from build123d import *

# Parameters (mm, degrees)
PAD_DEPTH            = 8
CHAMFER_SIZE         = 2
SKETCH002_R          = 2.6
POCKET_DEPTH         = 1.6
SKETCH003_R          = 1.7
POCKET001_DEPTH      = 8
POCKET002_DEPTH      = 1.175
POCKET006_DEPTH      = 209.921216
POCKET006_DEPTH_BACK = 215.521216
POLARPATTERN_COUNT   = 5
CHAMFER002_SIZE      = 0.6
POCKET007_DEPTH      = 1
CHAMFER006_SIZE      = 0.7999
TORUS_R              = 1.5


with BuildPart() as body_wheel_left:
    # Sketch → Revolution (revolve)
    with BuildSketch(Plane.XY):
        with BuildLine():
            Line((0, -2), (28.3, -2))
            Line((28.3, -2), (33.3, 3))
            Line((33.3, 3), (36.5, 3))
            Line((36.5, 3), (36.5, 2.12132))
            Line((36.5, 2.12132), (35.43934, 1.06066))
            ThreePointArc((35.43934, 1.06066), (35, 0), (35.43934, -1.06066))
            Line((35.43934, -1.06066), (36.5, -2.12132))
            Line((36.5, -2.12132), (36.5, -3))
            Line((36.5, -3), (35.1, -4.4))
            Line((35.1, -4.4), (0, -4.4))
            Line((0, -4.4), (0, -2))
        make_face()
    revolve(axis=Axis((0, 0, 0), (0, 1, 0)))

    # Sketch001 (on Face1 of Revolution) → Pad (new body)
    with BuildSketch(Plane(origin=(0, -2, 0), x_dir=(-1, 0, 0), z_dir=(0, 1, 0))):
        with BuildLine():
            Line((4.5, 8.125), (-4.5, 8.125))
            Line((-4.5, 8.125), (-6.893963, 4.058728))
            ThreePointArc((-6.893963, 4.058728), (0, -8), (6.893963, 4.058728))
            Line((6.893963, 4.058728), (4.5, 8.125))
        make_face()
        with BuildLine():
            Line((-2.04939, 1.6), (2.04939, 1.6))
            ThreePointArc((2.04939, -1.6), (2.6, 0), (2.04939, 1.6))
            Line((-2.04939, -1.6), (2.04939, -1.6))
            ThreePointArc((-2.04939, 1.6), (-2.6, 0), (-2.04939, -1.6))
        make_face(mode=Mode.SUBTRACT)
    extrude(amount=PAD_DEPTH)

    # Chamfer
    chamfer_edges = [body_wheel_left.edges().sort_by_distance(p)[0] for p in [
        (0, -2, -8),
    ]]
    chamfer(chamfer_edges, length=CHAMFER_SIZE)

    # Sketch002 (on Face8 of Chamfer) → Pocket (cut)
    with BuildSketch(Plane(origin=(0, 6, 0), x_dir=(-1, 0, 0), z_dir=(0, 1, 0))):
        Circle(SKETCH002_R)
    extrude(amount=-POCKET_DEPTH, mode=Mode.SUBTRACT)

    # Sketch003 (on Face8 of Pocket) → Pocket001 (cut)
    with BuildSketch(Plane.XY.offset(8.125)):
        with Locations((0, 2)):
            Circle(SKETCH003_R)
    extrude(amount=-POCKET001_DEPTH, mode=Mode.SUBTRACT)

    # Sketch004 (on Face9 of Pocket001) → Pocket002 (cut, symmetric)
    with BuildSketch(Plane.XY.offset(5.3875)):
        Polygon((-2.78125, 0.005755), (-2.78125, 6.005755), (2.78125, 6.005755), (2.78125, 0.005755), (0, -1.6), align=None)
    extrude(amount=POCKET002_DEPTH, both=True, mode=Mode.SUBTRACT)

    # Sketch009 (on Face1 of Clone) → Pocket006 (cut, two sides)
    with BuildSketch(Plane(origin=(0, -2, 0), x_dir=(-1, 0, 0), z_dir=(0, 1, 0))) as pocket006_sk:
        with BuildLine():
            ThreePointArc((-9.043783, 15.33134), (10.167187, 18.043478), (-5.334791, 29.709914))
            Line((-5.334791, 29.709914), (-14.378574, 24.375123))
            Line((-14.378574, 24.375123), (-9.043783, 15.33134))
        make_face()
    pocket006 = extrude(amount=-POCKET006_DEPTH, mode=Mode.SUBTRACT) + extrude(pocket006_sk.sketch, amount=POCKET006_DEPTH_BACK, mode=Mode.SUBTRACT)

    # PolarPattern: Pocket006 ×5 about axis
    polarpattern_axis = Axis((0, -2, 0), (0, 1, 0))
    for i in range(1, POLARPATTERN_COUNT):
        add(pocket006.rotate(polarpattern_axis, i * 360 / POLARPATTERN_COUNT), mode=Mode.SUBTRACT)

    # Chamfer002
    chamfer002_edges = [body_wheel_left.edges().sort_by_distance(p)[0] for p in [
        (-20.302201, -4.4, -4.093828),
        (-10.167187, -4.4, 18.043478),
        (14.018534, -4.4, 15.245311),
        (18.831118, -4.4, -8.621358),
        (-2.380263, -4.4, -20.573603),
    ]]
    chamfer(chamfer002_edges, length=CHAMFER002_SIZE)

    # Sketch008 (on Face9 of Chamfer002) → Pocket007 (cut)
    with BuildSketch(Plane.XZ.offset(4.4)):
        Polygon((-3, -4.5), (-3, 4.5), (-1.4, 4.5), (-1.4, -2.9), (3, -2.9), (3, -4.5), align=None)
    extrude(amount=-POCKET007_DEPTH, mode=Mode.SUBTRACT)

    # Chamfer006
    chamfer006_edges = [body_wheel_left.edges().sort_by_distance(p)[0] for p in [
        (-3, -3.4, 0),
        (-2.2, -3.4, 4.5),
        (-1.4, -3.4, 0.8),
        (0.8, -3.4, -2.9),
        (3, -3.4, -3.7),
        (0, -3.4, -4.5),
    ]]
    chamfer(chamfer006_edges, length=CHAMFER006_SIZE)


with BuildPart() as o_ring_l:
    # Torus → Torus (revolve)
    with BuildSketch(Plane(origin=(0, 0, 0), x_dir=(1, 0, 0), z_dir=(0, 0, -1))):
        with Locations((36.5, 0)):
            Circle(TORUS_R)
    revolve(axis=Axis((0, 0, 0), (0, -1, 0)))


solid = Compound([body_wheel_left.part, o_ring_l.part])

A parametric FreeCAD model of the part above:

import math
import FreeCAD as App
import Part
import Sketcher
from FreeCAD import Vector
Q = App.Units.Quantity


def edges_at(feature, points):
    """Names of the edges that pass closest to the given points."""
    edges = feature.Shape.Edges
    near = lambda p: min(range(len(edges)), key=lambda i: edges[i].distToShape(Part.Vertex(*p))[0])
    return sorted({f"Edge{near(p) + 1}" for p in points})

doc = App.newDocument("Part")
body = doc.addObject("PartDesign::Body", "Body")

sketch1 = body.newObject("Sketcher::SketchObject", "Sketch")
sketch1.AttachmentSupport = (doc.getObject("XY_Plane"), [""])
sketch1.MapMode = "FlatFace"
sketch1.addGeometry(Part.LineSegment(Vector(28.3, -2, 0), Vector(0, -2, 0)), False)
sketch1.addGeometry(Part.LineSegment(Vector(0, -2, 0), Vector(0, -4.4, 0)), False)
sketch1.addGeometry(Part.LineSegment(Vector(0, -4.4, 0), Vector(35.1, -4.4, 0)), False)
sketch1.addGeometry(Part.LineSegment(Vector(35.1, -4.4, 0), Vector(36.5, -3, 0)), False)
sketch1.addGeometry(Part.LineSegment(Vector(36.5, -3, 0), Vector(36.5, -2.1, 0)), False)
sketch1.addGeometry(Part.LineSegment(Vector(36.5, -2.1, 0), Vector(35.4, -1.1, 0)), False)
sketch1.addGeometry(Part.ArcOfCircle(Part.Circle(Vector(36.5, 0, 0), Vector(0, 0, 1), 1.5), math.radians(135), math.radians(225)), False)
sketch1.addGeometry(Part.LineSegment(Vector(35.4, 1.1, 0), Vector(36.5, 2.1, 0)), False)
sketch1.addGeometry(Part.LineSegment(Vector(36.5, 2.1, 0), Vector(36.5, 3, 0)), False)
sketch1.addGeometry(Part.LineSegment(Vector(36.5, 3, 0), Vector(33.3, 3, 0)), False)
sketch1.addGeometry(Part.LineSegment(Vector(33.3, 3, 0), Vector(28.3, -2, 0)), False)
sketch1.addConstraint(Sketcher.Constraint("Coincident", 0, 2, 1, 1))
sketch1.addConstraint(Sketcher.Constraint("Coincident", 1, 2, 2, 1))
sketch1.addConstraint(Sketcher.Constraint("Coincident", 2, 2, 3, 1))
sketch1.addConstraint(Sketcher.Constraint("Coincident", 3, 2, 4, 1))
sketch1.addConstraint(Sketcher.Constraint("Coincident", 4, 2, 5, 1))
sketch1.addConstraint(Sketcher.Constraint("Tangent", 5, 2, 6, 2))
sketch1.addConstraint(Sketcher.Constraint("Tangent", 6, 1, 7, 1))
sketch1.addConstraint(Sketcher.Constraint("Coincident", 7, 2, 8, 1))
sketch1.addConstraint(Sketcher.Constraint("Coincident", 8, 2, 9, 1))
sketch1.addConstraint(Sketcher.Constraint("Coincident", 9, 2, 10, 1))
sketch1.addConstraint(Sketcher.Constraint("Coincident", 10, 2, 0, 1))
sketch1.addConstraint(Sketcher.Constraint("Horizontal", 0))
sketch1.addConstraint(Sketcher.Constraint("Vertical", 1))
sketch1.addConstraint(Sketcher.Constraint("Horizontal", 2))
sketch1.addConstraint(Sketcher.Constraint("Vertical", 4))
sketch1.addConstraint(Sketcher.Constraint("Vertical", 8))
sketch1.addConstraint(Sketcher.Constraint("Horizontal", 9))
sketch1.addConstraint(Sketcher.Constraint("Symmetric", 5, 2, 6, 1, -1))
sketch1.addConstraint(Sketcher.Constraint("Symmetric", 3, 2, 8, 2, -1))
sketch1.addConstraint(Sketcher.Constraint("PointOnObject", 0, 2, -2))
sketch1.addConstraint(Sketcher.Constraint("Perpendicular", 3, 5))
sketch1.addConstraint(Sketcher.Constraint("Perpendicular", 5, 7))
sketch1.addConstraint(Sketcher.Constraint("Parallel", 7, 10))
sketch1.addConstraint(Sketcher.Constraint("Vertical", 6, 3, 3, 2))
sketch1.addConstraint(Sketcher.Constraint("Radius", 6, 1.499999))
sketch1.addConstraint(Sketcher.Constraint("DistanceX", 0, 2, 0, 1, 28.3))
sketch1.addConstraint(Sketcher.Constraint("DistanceX", 2, 1, 2, 2, 35.1))
sketch1.addConstraint(Sketcher.Constraint("DistanceX", 9, 2, 9, 1, 3.2))
sketch1.addConstraint(Sketcher.Constraint("DistanceY", 1, 2, 1, 1, 2.4))
sketch1.addConstraint(Sketcher.Constraint("DistanceY", 0, 2, -1, 1, 2.0))
revolution = body.newObject("PartDesign::Revolution", "Revolution")
revolution.Profile = sketch1
revolution.ReferenceAxis = (sketch1, ["V_Axis"])
revolution.Angle = 360

sketch2 = body.newObject("Sketcher::SketchObject", "Sketch001")
sketch2.AttachmentSupport = (doc.getObject("XZ_Plane"), [""])
sketch2.MapMode = "FlatFace"
sketch2.AttachmentOffset = App.Placement(Vector(0, 0, 2), App.Rotation())
sketch2.addGeometry(Part.LineSegment(Vector(-4.5, 8.1, 0), Vector(4.5, 8.1, 0)), False)
sketch2.addGeometry(Part.LineSegment(Vector(4.5, 8.1, 0), Vector(6.9, 4.1, 0)), False)
sketch2.addGeometry(Part.ArcOfCircle(Part.Circle(Vector(0, 0, 0), Vector(0, 0, 1), 8), math.radians(150), math.radians(390)), False)
sketch2.addGeometry(Part.LineSegment(Vector(-6.9, 4.1, 0), Vector(-4.5, 8.1, 0)), False)
sketch2.addGeometry(Part.ArcOfCircle(Part.Circle(Vector(0, 0, 0), Vector(0, 0, 1), 2.6), math.radians(-38), math.radians(38)), False)
sketch2.addGeometry(Part.LineSegment(Vector(2, 1.6, 0), Vector(-2, 1.6, 0)), False)
sketch2.addGeometry(Part.ArcOfCircle(Part.Circle(Vector(0, 0, 0), Vector(0, 0, 1), 2.6), math.radians(142), math.radians(218)), False)
sketch2.addGeometry(Part.LineSegment(Vector(-2, -1.6, 0), Vector(2, -1.6, 0)), False)
sketch2.addConstraint(Sketcher.Constraint("Coincident", 0, 2, 1, 1))
sketch2.addConstraint(Sketcher.Constraint("Tangent", 1, 2, 2, 2))
sketch2.addConstraint(Sketcher.Constraint("Tangent", 2, 1, 3, 1))
sketch2.addConstraint(Sketcher.Constraint("Coincident", 3, 2, 0, 1))
sketch2.addConstraint(Sketcher.Constraint("Coincident", 4, 2, 5, 1))
sketch2.addConstraint(Sketcher.Constraint("Coincident", 5, 2, 6, 1))
sketch2.addConstraint(Sketcher.Constraint("Coincident", 6, 2, 7, 1))
sketch2.addConstraint(Sketcher.Constraint("Coincident", 7, 2, 4, 1))
sketch2.addConstraint(Sketcher.Constraint("Horizontal", 0))
sketch2.addConstraint(Sketcher.Constraint("Horizontal", 5))
sketch2.addConstraint(Sketcher.Constraint("Horizontal", 7))
sketch2.addConstraint(Sketcher.Constraint("Coincident", 2, 3, -1, 1))
sketch2.addConstraint(Sketcher.Constraint("Coincident", 4, 3, -1, 1))
sketch2.addConstraint(Sketcher.Constraint("Coincident", 6, 3, -1, 1))
sketch2.addConstraint(Sketcher.Constraint("Equal", 4, 6))
sketch2.addConstraint(Sketcher.Constraint("Horizontal", 1, 2, 2, 1))
sketch2.addConstraint(Sketcher.Constraint("Vertical", 5, 2, 6, 2))
sketch2.addConstraint(Sketcher.Constraint("Radius", 2, 8.0))
sketch2.addConstraint(Sketcher.Constraint("Radius", 4, 2.599999))
sketch2.addConstraint(Sketcher.Constraint("DistanceX", 0, 1, 0, 2, 9.0))
sketch2.addConstraint(Sketcher.Constraint("DistanceY", -1, 1, 4, 2, 1.6))
sketch2.addConstraint(Sketcher.Constraint("DistanceY", -1, 1, 0, 2, 8.125))
pad1 = body.newObject("PartDesign::Pad", "Pad")
pad1.Profile = sketch2
pad1.Length = 8
pad1.Reversed = True
doc.recompute()

chamfer = body.newObject("PartDesign::Chamfer", "Chamfer")
chamfer.Base = (pad1, edges_at(pad1, [(0, -2, -8)]))
chamfer.Size = 2

sketch3 = body.newObject("Sketcher::SketchObject", "Sketch002")
sketch3.AttachmentSupport = (doc.getObject("XZ_Plane"), [""])
sketch3.MapMode = "FlatFace"
sketch3.AttachmentOffset = App.Placement(Vector(0, 0, -6), App.Rotation())
sketch3.addGeometry(Part.Circle(Vector(0, 0, 0), Vector(0, 0, 1), 2.6), False)
sketch3.addConstraint(Sketcher.Constraint("Coincident", 0, 3, -1, 1))
sketch3.addConstraint(Sketcher.Constraint("Diameter", 0, 5.2))
pocket1 = body.newObject("PartDesign::Pocket", "Pocket")
pocket1.Profile = sketch3
pocket1.Length = 1.6
pocket1.Reversed = True

sketch4 = body.newObject("Sketcher::SketchObject", "Sketch003")
sketch4.AttachmentSupport = (doc.getObject("XY_Plane"), [""])
sketch4.MapMode = "FlatFace"
sketch4.AttachmentOffset = App.Placement(Vector(0, 0, 8.125), App.Rotation())
sketch4.addGeometry(Part.Circle(Vector(0, 2, 0), Vector(0, 0, 1), 1.7), False)
sketch4.addConstraint(Sketcher.Constraint("PointOnObject", 0, 3, -2))
sketch4.addConstraint(Sketcher.Constraint("Diameter", 0, 3.4))
sketch4.addConstraint(Sketcher.Constraint("DistanceY", -1, 1, 0, 3, 2.0))
pocket2 = body.newObject("PartDesign::Pocket", "Pocket001")
pocket2.Profile = sketch4
pocket2.Length = 8

sketch5 = body.newObject("Sketcher::SketchObject", "Sketch004")
sketch5.AttachmentSupport = (doc.getObject("XY_Plane"), [""])
sketch5.MapMode = "FlatFace"
sketch5.AttachmentOffset = App.Placement(Vector(0, 0, 5.3875), App.Rotation())
sketch5.addGeometry(Part.LineSegment(Vector(-2.8, 6, 0), Vector(-2.8, 0, 0)), False)
sketch5.addGeometry(Part.LineSegment(Vector(-2.8, 0, 0), Vector(0, -1.6, 0)), False)
sketch5.addGeometry(Part.LineSegment(Vector(0, -1.6, 0), Vector(2.8, 0, 0)), False)
sketch5.addGeometry(Part.LineSegment(Vector(2.8, 0, 0), Vector(2.8, 6, 0)), False)
sketch5.addGeometry(Part.LineSegment(Vector(2.8, 6, 0), Vector(-2.8, 6, 0)), False)
sketch5.addConstraint(Sketcher.Constraint("Coincident", 0, 2, 1, 1))
sketch5.addConstraint(Sketcher.Constraint("Coincident", 1, 2, 2, 1))
sketch5.addConstraint(Sketcher.Constraint("Coincident", 2, 2, 3, 1))
sketch5.addConstraint(Sketcher.Constraint("Coincident", 3, 2, 4, 1))
sketch5.addConstraint(Sketcher.Constraint("Coincident", 4, 2, 0, 1))
sketch5.addConstraint(Sketcher.Constraint("Vertical", 0))
sketch5.addConstraint(Sketcher.Constraint("Vertical", 3))
sketch5.addConstraint(Sketcher.Constraint("Horizontal", 4))
sketch5.addConstraint(Sketcher.Constraint("Symmetric", 0, 2, 2, 2, -2))
sketch5.addConstraint(Sketcher.Constraint("PointOnObject", 1, 2, -2))
sketch5.addConstraint(Sketcher.Constraint("DistanceY", 0, 2, 0, 1, 6.0))
sketch5.addConstraint(Sketcher.Constraint("Angle", 1, Q("-29.999993 deg")))
sketch5.addConstraint(Sketcher.Constraint("DistanceY", 1, 2, -1, 1, 1.6))
sketch5.addConstraint(Sketcher.Constraint("DistanceX", 4, 2, 4, 1, 5.5625))
pocket3 = body.newObject("PartDesign::Pocket", "Pocket002")
pocket3.Profile = sketch5
pocket3.Length = 2.35
pocket3.Midplane = True

sketch6 = body.newObject("Sketcher::SketchObject", "Sketch005")
sketch6.AttachmentSupport = (doc.getObject("XZ_Plane"), [""])
sketch6.MapMode = "FlatFace"
sketch6.AttachmentOffset = App.Placement(Vector(0, 0, 2), App.Rotation())
sketch6.addGeometry(Part.ArcOfCircle(Part.Circle(Vector(0, 21, 0), Vector(0, 0, 1), 11), math.radians(59), math.radians(329)), False)
sketch6.addGeometry(Part.LineSegment(Vector(5, 30, 0), Vector(14, 24, 0)), False)
sketch6.addGeometry(Part.LineSegment(Vector(14, 24, 0), Vector(9, 15, 0)), False)
sketch6.addConstraint(Sketcher.Constraint("Tangent", 0, 1, 1, 1))
sketch6.addConstraint(Sketcher.Constraint("Coincident", 1, 2, 2, 1))
sketch6.addConstraint(Sketcher.Constraint("Tangent", 2, 2, 0, 2))
sketch6.addConstraint(Sketcher.Constraint("PointOnObject", 0, 3, -2))
sketch6.addConstraint(Sketcher.Constraint("Perpendicular", 1, 2))
sketch6.addConstraint(Sketcher.Constraint("Radius", 0, 10.5))
sketch6.addConstraint(Sketcher.Constraint("DistanceY", -1, 1, 0, 3, 20.666131))
sketch6.addConstraint(Sketcher.Constraint("DistanceX", -1, 1, 0, 1, 5.334791))
pocket4 = body.newObject("PartDesign::Pocket", "Pocket003")
pocket4.Profile = sketch6
pocket4.Type = "ThroughAll"
pocket4.Midplane = True
doc.recompute()

polarpattern = body.newObject("PartDesign::PolarPattern", "PolarPattern")
polarpattern.Originals = [pocket4]
polarpattern.Axis = (doc.getObject("Y_Axis"), [""])
polarpattern.Angle = 360
polarpattern.Occurrences = 5
body.Tip = polarpattern
doc.recompute()

chamfer2 = body.newObject("PartDesign::Chamfer", "Chamfer001")
chamfer2.Base = (polarpattern, edges_at(polarpattern, [
    (-20.302, -4.4, -4.094),
    (-10.167, -4.4, 18.043),
    (14.019, -4.4, 15.245),
    (18.831, -4.4, -8.621),
    (-2.38, -4.4, -20.574),
]))
chamfer2.Size = 0.6

sketch7 = body.newObject("Sketcher::SketchObject", "Sketch006")
sketch7.AttachmentSupport = (doc.getObject("XZ_Plane"), [""])
sketch7.MapMode = "FlatFace"
sketch7.AttachmentOffset = App.Placement(Vector(0, 0, 4.4), App.Rotation())
sketch7.addGeometry(Part.LineSegment(Vector(-3, 4.5, 0), Vector(-3, -4.5, 0)), False)
sketch7.addGeometry(Part.LineSegment(Vector(-3, -4.5, 0), Vector(3, -4.5, 0)), False)
sketch7.addGeometry(Part.LineSegment(Vector(3, -4.5, 0), Vector(3, -2.9, 0)), False)
sketch7.addGeometry(Part.LineSegment(Vector(3, -2.9, 0), Vector(-1.4, -2.9, 0)), False)
sketch7.addGeometry(Part.LineSegment(Vector(-1.4, -2.9, 0), Vector(-1.4, 4.5, 0)), False)
sketch7.addGeometry(Part.LineSegment(Vector(-1.4, 4.5, 0), Vector(-3, 4.5, 0)), False)
sketch7.addConstraint(Sketcher.Constraint("Coincident", 0, 2, 1, 1))
sketch7.addConstraint(Sketcher.Constraint("Coincident", 1, 2, 2, 1))
sketch7.addConstraint(Sketcher.Constraint("Coincident", 2, 2, 3, 1))
sketch7.addConstraint(Sketcher.Constraint("Coincident", 3, 2, 4, 1))
sketch7.addConstraint(Sketcher.Constraint("Coincident", 4, 2, 5, 1))
sketch7.addConstraint(Sketcher.Constraint("Coincident", 5, 2, 0, 1))
sketch7.addConstraint(Sketcher.Constraint("Vertical", 0))
sketch7.addConstraint(Sketcher.Constraint("Horizontal", 1))
sketch7.addConstraint(Sketcher.Constraint("Vertical", 2))
sketch7.addConstraint(Sketcher.Constraint("Horizontal", 3))
sketch7.addConstraint(Sketcher.Constraint("Vertical", 4))
sketch7.addConstraint(Sketcher.Constraint("Horizontal", 5))
sketch7.addConstraint(Sketcher.Constraint("Symmetric", 1, 2, 5, 2, -1, 1))
sketch7.addConstraint(Sketcher.Constraint("Equal", 5, 2))
sketch7.addConstraint(Sketcher.Constraint("DistanceX", 1, 1, 1, 2, 6.0))
sketch7.addConstraint(Sketcher.Constraint("DistanceY", 0, 2, 0, 1, 9.0))
sketch7.addConstraint(Sketcher.Constraint("DistanceX", 3, 2, 3, 1, 4.4))
pocket5 = body.newObject("PartDesign::Pocket", "Pocket004")
pocket5.Profile = sketch7
pocket5.Length = 1
doc.recompute()

chamfer3 = body.newObject("PartDesign::Chamfer", "Chamfer002")
chamfer3.Base = (pocket5, edges_at(pocket5, [
    (-3, -3.4, 0),
    (-2.2, -3.4, 4.5),
    (-1.4, -3.4, 0.8),
    (0.8, -3.4, -2.9),
    (3, -3.4, -3.7),
    (0, -3.4, -4.5),
]))
chamfer3.Size = 0.7999
body2 = doc.addObject("PartDesign::Body", "Body001")

sketch8 = body2.newObject("Sketcher::SketchObject", "Sketch007")
sketch8.AttachmentSupport = (doc.getObject("XY_Plane001"), [""])
sketch8.MapMode = "FlatFace"
sketch8.addGeometry(Part.Circle(Vector(36.5, 0, 0), Vector(0, 0, 1), 1.5), False)
sketch8.addConstraint(Sketcher.Constraint("PointOnObject", 0, 3, -1))
sketch8.addConstraint(Sketcher.Constraint("Diameter", 0, 3.0))
sketch8.addConstraint(Sketcher.Constraint("DistanceX", -1, 1, 0, 3, 36.5))
revolution2 = body2.newObject("PartDesign::Revolution", "Revolution001")
revolution2.Profile = sketch8
revolution2.ReferenceAxis = (sketch8, ["V_Axis"])
revolution2.Angle = 360

doc.recompute()
